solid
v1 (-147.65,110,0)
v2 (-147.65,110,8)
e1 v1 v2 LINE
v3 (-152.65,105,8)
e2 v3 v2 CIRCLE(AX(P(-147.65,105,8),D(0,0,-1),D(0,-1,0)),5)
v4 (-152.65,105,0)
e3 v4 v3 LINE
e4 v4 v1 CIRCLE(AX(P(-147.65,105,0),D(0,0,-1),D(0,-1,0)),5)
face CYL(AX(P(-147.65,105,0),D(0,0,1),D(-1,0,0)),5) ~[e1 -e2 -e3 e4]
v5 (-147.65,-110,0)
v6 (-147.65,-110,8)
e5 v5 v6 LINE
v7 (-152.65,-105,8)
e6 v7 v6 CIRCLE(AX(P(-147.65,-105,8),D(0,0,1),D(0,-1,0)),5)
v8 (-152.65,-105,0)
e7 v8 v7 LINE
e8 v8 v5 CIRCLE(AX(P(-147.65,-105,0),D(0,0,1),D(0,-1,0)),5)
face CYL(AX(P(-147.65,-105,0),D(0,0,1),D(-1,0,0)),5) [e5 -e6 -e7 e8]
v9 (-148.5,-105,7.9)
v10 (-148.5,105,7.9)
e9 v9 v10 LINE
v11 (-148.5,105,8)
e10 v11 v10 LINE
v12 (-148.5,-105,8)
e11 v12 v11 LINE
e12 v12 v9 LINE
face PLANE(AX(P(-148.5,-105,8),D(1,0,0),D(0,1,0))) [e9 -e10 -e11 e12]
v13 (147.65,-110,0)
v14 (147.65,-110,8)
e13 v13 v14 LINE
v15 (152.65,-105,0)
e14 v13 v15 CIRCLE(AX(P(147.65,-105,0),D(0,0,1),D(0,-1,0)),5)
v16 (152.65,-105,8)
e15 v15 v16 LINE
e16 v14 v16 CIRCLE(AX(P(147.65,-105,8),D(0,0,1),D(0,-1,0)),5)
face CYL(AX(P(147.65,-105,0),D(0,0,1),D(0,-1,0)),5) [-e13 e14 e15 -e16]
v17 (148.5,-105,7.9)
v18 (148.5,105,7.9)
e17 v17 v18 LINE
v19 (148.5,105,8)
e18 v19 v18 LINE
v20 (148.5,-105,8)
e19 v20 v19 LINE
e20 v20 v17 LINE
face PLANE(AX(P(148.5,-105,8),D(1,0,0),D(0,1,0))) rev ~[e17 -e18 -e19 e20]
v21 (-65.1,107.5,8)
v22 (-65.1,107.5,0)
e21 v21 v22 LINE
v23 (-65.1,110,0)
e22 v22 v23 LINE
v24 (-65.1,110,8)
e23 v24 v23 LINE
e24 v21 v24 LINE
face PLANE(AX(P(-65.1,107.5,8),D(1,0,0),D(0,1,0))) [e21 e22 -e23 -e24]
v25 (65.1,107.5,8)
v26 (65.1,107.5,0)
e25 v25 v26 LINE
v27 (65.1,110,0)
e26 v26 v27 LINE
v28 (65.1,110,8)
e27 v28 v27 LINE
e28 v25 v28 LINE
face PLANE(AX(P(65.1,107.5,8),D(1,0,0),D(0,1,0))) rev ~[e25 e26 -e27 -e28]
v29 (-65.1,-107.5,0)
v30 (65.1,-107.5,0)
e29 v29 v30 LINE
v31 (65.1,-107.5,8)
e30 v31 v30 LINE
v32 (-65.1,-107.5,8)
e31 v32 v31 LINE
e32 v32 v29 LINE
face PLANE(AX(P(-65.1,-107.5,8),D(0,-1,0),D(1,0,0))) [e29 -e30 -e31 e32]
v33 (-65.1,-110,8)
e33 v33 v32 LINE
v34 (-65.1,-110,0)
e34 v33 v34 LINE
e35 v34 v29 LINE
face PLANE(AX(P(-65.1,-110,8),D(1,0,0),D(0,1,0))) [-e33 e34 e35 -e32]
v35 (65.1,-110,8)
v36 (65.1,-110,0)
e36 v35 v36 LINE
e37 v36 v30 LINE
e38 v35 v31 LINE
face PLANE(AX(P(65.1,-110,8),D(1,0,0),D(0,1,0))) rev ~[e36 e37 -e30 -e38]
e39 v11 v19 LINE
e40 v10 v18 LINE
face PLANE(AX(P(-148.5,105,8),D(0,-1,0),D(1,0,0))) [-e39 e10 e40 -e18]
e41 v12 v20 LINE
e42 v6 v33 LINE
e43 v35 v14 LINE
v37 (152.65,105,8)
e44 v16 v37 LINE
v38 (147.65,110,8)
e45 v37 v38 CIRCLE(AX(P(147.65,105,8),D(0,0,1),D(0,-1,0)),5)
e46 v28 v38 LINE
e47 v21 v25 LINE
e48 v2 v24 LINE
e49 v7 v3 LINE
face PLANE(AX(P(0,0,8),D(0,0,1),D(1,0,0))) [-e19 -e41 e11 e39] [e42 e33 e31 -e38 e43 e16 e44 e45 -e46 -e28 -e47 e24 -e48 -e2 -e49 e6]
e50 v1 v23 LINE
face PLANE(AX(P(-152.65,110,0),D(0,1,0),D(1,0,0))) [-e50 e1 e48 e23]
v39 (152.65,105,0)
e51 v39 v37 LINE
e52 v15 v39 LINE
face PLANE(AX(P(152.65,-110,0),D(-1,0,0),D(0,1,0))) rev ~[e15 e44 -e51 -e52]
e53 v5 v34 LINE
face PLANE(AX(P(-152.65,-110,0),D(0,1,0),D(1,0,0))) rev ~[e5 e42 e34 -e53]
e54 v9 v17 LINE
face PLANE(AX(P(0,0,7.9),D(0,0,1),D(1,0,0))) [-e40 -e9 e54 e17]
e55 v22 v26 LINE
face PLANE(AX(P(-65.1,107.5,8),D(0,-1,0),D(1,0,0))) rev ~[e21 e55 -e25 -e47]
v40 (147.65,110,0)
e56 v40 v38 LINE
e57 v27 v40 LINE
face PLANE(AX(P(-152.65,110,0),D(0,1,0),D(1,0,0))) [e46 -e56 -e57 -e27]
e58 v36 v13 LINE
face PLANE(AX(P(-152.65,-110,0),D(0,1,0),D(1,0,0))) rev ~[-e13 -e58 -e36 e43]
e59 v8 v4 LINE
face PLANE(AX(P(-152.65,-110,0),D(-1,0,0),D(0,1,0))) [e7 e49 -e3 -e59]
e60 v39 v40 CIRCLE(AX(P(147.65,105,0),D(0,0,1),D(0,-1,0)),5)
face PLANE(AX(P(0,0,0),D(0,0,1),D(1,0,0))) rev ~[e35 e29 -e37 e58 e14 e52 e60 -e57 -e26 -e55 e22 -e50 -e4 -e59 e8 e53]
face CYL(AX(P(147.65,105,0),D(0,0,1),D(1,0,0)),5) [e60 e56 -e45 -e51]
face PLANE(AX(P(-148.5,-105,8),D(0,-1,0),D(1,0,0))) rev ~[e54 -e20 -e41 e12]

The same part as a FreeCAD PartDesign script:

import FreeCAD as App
import Part
import Sketcher
Q = App.Units.Quantity


def edges_at(feature, points):
    """Names of the edges that pass closest to the given points."""
    edges = feature.Shape.Edges
    near = lambda p: min(range(len(edges)), key=lambda i: edges[i].distToShape(Part.Vertex(*p))[0])
    return sorted({f"Edge{near(p) + 1}" for p in points})

doc = App.newDocument("Part")
body = doc.addObject("PartDesign::Body", "Body")

sketch1 = body.newObject("Sketcher::SketchObject", "Sketch")
sketch1.AttachmentSupport = (doc.getObject("XY_Plane"), [""])
sketch1.MapMode = "FlatFace"
sketch1.addGeometry([
    Part.LineSegment(App.Vector(-153, 110, 0), App.Vector(-153, -110, 0)),
    Part.LineSegment(App.Vector(-153, -110, 0), App.Vector(153, -110, 0)),
    Part.LineSegment(App.Vector(153, -110, 0), App.Vector(153, 110, 0)),
    Part.LineSegment(App.Vector(153, 110, 0), App.Vector(-153, 110, 0)),
], False)
sketch1.addConstraint([
    Sketcher.Constraint("Coincident", 0, 2, 1, 1),
    Sketcher.Constraint("Coincident", 1, 2, 2, 1),
    Sketcher.Constraint("Coincident", 2, 2, 3, 1),
    Sketcher.Constraint("Coincident", 3, 2, 0, 1),
    Sketcher.Constraint("Vertical", 0),
    Sketcher.Constraint("Horizontal", 1),
    Sketcher.Constraint("Vertical", 2),
    Sketcher.Constraint("Horizontal", 3),
    Sketcher.Constraint("Symmetric", 0, 2, 2, 2, -1, 1),
    Sketcher.Constraint("DistanceY", 0, 2, 0, 1, Q("220 mm")),
    Sketcher.Constraint("DistanceX", 1, 1, 1, 2, Q("305.3 mm")),
])
pad1 = body.newObject("PartDesign::Pad", "Pad")
pad1.Profile = sketch1
pad1.Length = 8
doc.recompute()

fillet = body.newObject("PartDesign::Fillet", "Fillet")
fillet.Base = (pad1, edges_at(pad1, [
    (-152.65, 110, 4),
    (-152.65, -110, 4),
    (152.65, -110, 4),
    (152.65, 110, 4),
]))
fillet.Radius = 5

sketch2 = body.newObject("Sketcher::SketchObject", "Sketch001")
sketch2.AttachmentSupport = (doc.getObject("XY_Plane"), [""])
sketch2.MapMode = "FlatFace"
sketch2.AttachmentOffset = App.Placement(App.Vector(0, 0, 8), App.Rotation())
sketch2.addGeometry([
    Part.LineSegment(App.Vector(-65.1, 110, 0), App.Vector(-65.1, 107.5, 0)),
    Part.LineSegment(App.Vector(-65.1, 107.5, 0), App.Vector(65.1, 107.5, 0)),
    Part.LineSegment(App.Vector(65.1, 107.5, 0), App.Vector(65.1, 110, 0)),
    Part.LineSegment(App.Vector(65.1, 110, 0), App.Vector(-65.1, 110, 0)),
    Part.LineSegment(App.Vector(-65.1, -107.5, 0), App.Vector(-65.1, -110, 0)),
    Part.LineSegment(App.Vector(-65.1, -110, 0), App.Vector(65.1, -110, 0)),
    Part.LineSegment(App.Vector(65.1, -110, 0), App.Vector(65.1, -107.5, 0)),
    Part.LineSegment(App.Vector(65.1, -107.5, 0), App.Vector(-65.1, -107.5, 0)),
], False)
sketch2.addConstraint([
    Sketcher.Constraint("Coincident", 0, 2, 1, 1),
    Sketcher.Constraint("Coincident", 1, 2, 2, 1),
    Sketcher.Constraint("Coincident", 2, 2, 3, 1),
    Sketcher.Constraint("Coincident", 3, 2, 0, 1),
    Sketcher.Constraint("Coincident", 4, 2, 5, 1),
    Sketcher.Constraint("Coincident", 5, 2, 6, 1),
    Sketcher.Constraint("Coincident", 6, 2, 7, 1),
    Sketcher.Constraint("Coincident", 7, 2, 4, 1),
    Sketcher.Constraint("Vertical", 0),
    Sketcher.Constraint("Horizontal", 1),
    Sketcher.Constraint("Vertical", 2),
    Sketcher.Constraint("Horizontal", 3),
    Sketcher.Constraint("Vertical", 4),
    Sketcher.Constraint("Horizontal", 5),
    Sketcher.Constraint("Vertical", 6),
    Sketcher.Constraint("Horizontal", 7),
    Sketcher.Constraint("Symmetric", 2, 2, 4, 2, -1, 1),
    Sketcher.Constraint("Symmetric", 0, 2, 6, 2, -1, 1),
    Sketcher.Constraint("Vertical", 3, 2, 4, 2),
    Sketcher.Constraint("DistanceX", 1, 1, 1, 2, Q("130.2 mm")),
    Sketcher.Constraint("DistanceY", 0, 2, 0, 1, Q("2.5 mm")),
    Sketcher.Constraint("DistanceY", -1, 1, 2, 2, Q("110 mm")),
])
pocket1 = body.newObject("PartDesign::Pocket", "Pocket")
pocket1.Profile = sketch2
pocket1.Length = 8

sketch3 = body.newObject("Sketcher::SketchObject", "Sketch002")
sketch3.AttachmentSupport = (doc.getObject("XY_Plane"), [""])
sketch3.MapMode = "FlatFace"
sketch3.AttachmentOffset = App.Placement(App.Vector(0, 0, 8), App.Rotation())
sketch3.addGeometry([
    Part.LineSegment(App.Vector(-148, 105, 0), App.Vector(-148, -105, 0)),
    Part.LineSegment(App.Vector(-148, -105, 0), App.Vector(148, -105, 0)),
    Part.LineSegment(App.Vector(148, -105, 0), App.Vector(148, 105, 0)),
    Part.LineSegment(App.Vector(148, 105, 0), App.Vector(-148, 105, 0)),
], False)
sketch3.addConstraint([
    Sketcher.Constraint("Coincident", 0, 2, 1, 1),
    Sketcher.Constraint("Coincident", 1, 2, 2, 1),
    Sketcher.Constraint("Coincident", 2, 2, 3, 1),
    Sketcher.Constraint("Coincident", 3, 2, 0, 1),
    Sketcher.Constraint("Vertical", 0),
    Sketcher.Constraint("Horizontal", 1),
    Sketcher.Constraint("Vertical", 2),
    Sketcher.Constraint("Horizontal", 3),
    Sketcher.Constraint("Symmetric", 0, 2, 2, 2, -1, 1),
    Sketcher.Constraint("DistanceX", 1, 1, 1, 2, Q("297 mm")),
    Sketcher.Constraint("DistanceY", 0, 2, 0, 1, Q("210 mm")),
])
pocket2 = body.newObject("PartDesign::Pocket", "Pocket001")
pocket2.Profile = sketch3
pocket2.Length = 0.1

doc.recompute()
